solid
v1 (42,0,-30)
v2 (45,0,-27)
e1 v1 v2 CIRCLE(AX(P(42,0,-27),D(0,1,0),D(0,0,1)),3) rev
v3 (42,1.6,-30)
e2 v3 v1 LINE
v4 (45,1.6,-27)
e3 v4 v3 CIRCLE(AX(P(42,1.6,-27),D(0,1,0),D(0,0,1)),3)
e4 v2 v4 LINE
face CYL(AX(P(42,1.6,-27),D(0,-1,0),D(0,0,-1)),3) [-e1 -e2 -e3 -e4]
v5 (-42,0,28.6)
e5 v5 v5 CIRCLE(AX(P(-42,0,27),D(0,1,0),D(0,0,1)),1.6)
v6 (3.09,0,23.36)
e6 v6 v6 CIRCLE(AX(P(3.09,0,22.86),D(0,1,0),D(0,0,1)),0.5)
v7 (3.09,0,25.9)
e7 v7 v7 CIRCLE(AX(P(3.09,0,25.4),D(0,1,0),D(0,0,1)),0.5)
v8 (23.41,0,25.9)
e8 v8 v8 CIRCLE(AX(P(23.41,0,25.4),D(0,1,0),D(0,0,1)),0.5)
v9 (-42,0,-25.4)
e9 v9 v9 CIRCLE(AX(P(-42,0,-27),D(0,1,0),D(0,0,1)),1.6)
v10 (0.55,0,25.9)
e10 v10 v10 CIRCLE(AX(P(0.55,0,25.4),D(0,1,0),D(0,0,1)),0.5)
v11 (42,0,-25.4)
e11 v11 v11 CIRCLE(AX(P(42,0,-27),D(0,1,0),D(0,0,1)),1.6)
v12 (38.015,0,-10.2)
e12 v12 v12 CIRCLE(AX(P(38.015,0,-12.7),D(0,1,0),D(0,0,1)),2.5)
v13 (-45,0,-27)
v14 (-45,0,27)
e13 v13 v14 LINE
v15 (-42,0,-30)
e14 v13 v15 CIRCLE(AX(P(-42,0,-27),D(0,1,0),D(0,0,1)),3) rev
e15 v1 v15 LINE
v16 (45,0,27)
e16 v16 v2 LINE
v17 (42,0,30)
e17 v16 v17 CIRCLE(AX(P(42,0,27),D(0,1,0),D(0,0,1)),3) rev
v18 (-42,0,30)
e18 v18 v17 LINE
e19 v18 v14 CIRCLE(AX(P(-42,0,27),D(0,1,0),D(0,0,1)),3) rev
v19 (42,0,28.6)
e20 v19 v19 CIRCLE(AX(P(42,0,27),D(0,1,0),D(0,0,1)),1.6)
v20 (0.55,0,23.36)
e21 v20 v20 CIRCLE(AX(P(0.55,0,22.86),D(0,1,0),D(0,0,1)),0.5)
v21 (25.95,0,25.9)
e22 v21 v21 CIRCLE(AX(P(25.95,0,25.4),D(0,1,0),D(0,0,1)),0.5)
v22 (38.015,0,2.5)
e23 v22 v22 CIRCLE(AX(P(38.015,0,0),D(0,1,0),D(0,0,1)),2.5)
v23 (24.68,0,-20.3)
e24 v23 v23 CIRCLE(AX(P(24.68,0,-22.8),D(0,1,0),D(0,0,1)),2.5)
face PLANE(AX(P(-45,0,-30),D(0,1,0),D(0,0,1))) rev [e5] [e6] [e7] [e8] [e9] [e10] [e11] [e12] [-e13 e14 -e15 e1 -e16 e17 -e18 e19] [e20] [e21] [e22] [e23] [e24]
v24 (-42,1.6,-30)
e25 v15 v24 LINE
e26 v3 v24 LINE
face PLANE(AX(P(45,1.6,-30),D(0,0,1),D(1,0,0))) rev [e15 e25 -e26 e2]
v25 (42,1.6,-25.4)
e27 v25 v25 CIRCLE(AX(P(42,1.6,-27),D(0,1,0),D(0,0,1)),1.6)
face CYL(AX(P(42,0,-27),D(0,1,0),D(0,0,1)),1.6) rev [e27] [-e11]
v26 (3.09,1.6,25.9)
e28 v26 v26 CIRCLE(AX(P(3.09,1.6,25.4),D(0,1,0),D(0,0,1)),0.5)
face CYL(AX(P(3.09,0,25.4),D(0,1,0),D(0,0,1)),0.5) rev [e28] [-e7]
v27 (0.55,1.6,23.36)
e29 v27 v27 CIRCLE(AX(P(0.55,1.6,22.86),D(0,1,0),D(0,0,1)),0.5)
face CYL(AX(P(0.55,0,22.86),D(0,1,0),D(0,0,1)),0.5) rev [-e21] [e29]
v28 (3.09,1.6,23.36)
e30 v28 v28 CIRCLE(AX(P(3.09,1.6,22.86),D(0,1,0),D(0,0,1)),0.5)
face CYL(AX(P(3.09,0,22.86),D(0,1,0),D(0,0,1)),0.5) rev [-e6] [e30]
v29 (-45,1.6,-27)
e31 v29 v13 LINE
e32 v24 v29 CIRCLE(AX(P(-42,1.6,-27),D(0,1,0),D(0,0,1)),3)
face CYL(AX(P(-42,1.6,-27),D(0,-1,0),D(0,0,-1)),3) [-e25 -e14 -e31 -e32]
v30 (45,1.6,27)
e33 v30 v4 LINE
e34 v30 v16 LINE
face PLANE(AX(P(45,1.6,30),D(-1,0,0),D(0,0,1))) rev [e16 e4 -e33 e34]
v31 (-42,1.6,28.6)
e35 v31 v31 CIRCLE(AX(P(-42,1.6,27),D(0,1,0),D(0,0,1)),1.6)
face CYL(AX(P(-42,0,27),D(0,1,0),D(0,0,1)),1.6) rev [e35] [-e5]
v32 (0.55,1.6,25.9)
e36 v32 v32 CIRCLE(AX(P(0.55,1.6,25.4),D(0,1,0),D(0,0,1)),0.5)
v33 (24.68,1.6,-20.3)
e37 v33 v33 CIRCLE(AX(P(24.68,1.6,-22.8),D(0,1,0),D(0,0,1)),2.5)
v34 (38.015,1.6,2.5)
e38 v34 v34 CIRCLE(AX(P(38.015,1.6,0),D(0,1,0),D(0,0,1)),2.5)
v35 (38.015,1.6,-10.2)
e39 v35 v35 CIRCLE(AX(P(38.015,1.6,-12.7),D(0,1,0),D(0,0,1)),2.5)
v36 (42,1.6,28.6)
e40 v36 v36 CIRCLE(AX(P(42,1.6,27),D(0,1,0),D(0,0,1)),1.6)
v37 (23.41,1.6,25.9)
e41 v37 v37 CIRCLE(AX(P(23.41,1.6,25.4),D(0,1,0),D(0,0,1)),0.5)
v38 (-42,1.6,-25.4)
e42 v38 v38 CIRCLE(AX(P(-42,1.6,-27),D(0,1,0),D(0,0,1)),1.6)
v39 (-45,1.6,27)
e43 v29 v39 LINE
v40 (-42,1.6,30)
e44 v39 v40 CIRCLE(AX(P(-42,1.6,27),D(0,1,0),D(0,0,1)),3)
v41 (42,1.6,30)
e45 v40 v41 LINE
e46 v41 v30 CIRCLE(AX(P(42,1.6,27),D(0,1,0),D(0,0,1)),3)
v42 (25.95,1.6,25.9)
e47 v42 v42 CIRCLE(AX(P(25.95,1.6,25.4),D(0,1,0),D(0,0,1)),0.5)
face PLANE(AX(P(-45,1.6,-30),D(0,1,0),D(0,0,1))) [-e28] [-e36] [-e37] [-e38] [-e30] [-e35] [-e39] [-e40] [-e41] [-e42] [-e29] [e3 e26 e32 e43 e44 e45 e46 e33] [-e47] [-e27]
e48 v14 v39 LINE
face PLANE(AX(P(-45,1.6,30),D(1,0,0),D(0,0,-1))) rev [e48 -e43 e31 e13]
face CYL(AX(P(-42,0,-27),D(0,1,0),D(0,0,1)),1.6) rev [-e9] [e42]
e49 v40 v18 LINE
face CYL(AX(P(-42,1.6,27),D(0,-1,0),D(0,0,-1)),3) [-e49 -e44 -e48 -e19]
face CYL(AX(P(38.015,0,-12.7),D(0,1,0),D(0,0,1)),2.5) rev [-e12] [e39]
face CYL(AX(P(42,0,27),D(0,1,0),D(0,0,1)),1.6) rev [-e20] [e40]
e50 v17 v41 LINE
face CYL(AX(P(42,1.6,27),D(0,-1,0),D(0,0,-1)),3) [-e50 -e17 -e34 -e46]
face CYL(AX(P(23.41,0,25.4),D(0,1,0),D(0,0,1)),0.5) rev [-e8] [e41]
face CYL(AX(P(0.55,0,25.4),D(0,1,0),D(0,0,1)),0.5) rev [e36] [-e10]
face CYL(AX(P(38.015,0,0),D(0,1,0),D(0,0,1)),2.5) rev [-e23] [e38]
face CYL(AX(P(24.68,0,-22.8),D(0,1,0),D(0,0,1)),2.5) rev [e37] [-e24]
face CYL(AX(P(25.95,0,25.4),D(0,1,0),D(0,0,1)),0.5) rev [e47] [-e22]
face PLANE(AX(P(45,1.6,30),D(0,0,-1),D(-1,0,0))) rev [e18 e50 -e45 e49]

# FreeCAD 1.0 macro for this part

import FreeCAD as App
import Part
import Sketcher


def edges_at(feature, points):
    """Names of the edges that pass closest to the given points."""
    edges = feature.Shape.Edges
    near = lambda p: min(range(len(edges)), key=lambda i: edges[i].distToShape(Part.Vertex(*p))[0])
    return sorted({f"Edge{near(p) + 1}" for p in points})

doc = App.newDocument("Part")
body = doc.addObject("PartDesign::Body", "Body")

# Sketch on XZ plane
sketch1 = doc.addObject("Sketcher::SketchObject", "Sketch")
body.addObject(sketch1)
sketch1.AttachmentSupport = (doc.XZ_Plane, [""])
sketch1.MapMode = "FlatFace"
sketch1.addGeometry([
    Part.LineSegment(App.Vector(-45, -30, 0), App.Vector(-45, 30, 0)),
    Part.LineSegment(App.Vector(-45, 30, 0), App.Vector(45, 30, 0)),
    Part.LineSegment(App.Vector(45, 30, 0), App.Vector(45, -30, 0)),
    Part.LineSegment(App.Vector(45, -30, 0), App.Vector(-45, -30, 0)),
], False)
sketch1.addConstraint([
    Sketcher.Constraint("Coincident", 0, 2, 1, 1),
    Sketcher.Constraint("Coincident", 1, 2, 2, 1),
    Sketcher.Constraint("Coincident", 2, 2, 3, 1),
    Sketcher.Constraint("Coincident", 3, 2, 0, 1),
    Sketcher.Constraint("Vertical", 0),
    Sketcher.Constraint("Horizontal", 1),
    Sketcher.Constraint("Vertical", 2),
    Sketcher.Constraint("Horizontal", 3),
    Sketcher.Constraint("Symmetric", 0, 2, 2, 2, -1, 1),
    Sketcher.Constraint("DistanceX", 1, 1, 1, 2, 90.0),
    Sketcher.Constraint("DistanceY", 0, 1, 0, 2, 60.0),
])
pad1 = doc.addObject("PartDesign::Pad", "Pad")
body.addObject(pad1)
pad1.Profile = sketch1
pad1.Length = 1.6
pad1.Reversed = True

# Sketch on XZ plane
sketch2 = doc.addObject("Sketcher::SketchObject", "Sketch001")
body.addObject(sketch2)
sketch2.AttachmentSupport = (doc.XZ_Plane, [""])
sketch2.MapMode = "FlatFace"
sketch2.AttachmentOffset = App.Placement(App.Vector(0, 0, -1.6), App.Rotation())
sketch2.addGeometry([
    Part.Circle(App.Vector(-42, -27, 0), App.Vector(0, 0, 1), 1.6),
    Part.Circle(App.Vector(-42, 27, 0), App.Vector(0, 0, 1), 1.6),
    Part.Circle(App.Vector(42, 27, 0), App.Vector(0, 0, 1), 1.6),
    Part.Circle(App.Vector(42, -27, 0), App.Vector(0, 0, 1), 1.6),
], False)
sketch2.addConstraint([
    Sketcher.Constraint("Equal", 0, 1),
    Sketcher.Constraint("Equal", 1, 2),
    Sketcher.Constraint("Equal", 2, 3),
    Sketcher.Constraint("Symmetric", 0, 3, 2, 3, -1, 1),
    Sketcher.Constraint("Symmetric", 1, 3, 3, 3, -1, 1),
    Sketcher.Constraint("Symmetric", 1, 3, 2, 3, -2),
    Sketcher.Constraint("Diameter", 0, 3.2),
    Sketcher.Constraint("DistanceX", 0, 3, -1, 1, 42.0),
    Sketcher.Constraint("DistanceY", 0, 3, -1, 1, 27.0),
])
pocket1 = doc.addObject("PartDesign::Pocket", "Pocket")
body.addObject(pocket1)
pocket1.Profile = sketch2
pocket1.Length = 1.6
pocket1.Reversed = True
doc.recompute()

fillet = doc.addObject("PartDesign::Fillet", "Fillet")
body.addObject(fillet)
fillet.Base = (pocket1, edges_at(pocket1, [
    (-45, 0.8, -30),
    (45, 0.8, -30),
    (45, 0.8, 30),
    (-45, 0.8, 30),
]))
fillet.Radius = 3

# Sketch on XZ plane
sketch3 = doc.addObject("Sketcher::SketchObject", "Sketch002")
body.addObject(sketch3)
sketch3.AttachmentSupport = (doc.XZ_Plane, [""])
sketch3.MapMode = "FlatFace"
sketch3.AttachmentOffset = App.Placement(App.Vector(0, 0, -1.6), App.Rotation())
sketch3.addGeometry([
    Part.Circle(App.Vector(0.6, 25.4, 0), App.Vector(0, 0, 1), 0.5),  # 0
    Part.Circle(App.Vector(0.6, 22.9, 0), App.Vector(0, 0, 1), 0.5),  # 1
    Part.Circle(App.Vector(3.1, 25.4, 0), App.Vector(0, 0, 1), 0.5),  # 2
    Part.Circle(App.Vector(3.1, 22.9, 0), App.Vector(0, 0, 1), 0.5),  # 3
    Part.Circle(App.Vector(23.4, 25.4, 0), App.Vector(0, 0, 1), 0.5),  # 4
    Part.Circle(App.Vector(25.9, 25.4, 0), App.Vector(0, 0, 1), 0.5),  # 5
    Part.Circle(App.Vector(38, 0, 0), App.Vector(0, 0, 1), 2.5),  # 6
    Part.Circle(App.Vector(38, -12.7, 0), App.Vector(0, 0, 1), 2.5),  # 7
    Part.Circle(App.Vector(24.7, -22.8, 0), App.Vector(0, 0, 1), 2.5),  # 8
], False)
sketch3.addConstraint([
    Sketcher.Constraint("Equal", 0, 1),
    Sketcher.Constraint("Equal", 1, 2),
    Sketcher.Constraint("Equal", 2, 3),
    Sketcher.Constraint("Equal", 3, 4),
    Sketcher.Constraint("Equal", 4, 5),
    Sketcher.Constraint("Equal", 6, 7),
    Sketcher.Constraint("Equal", 7, 8),
    Sketcher.Constraint("PointOnObject", 6, 3, -1),
    Sketcher.Constraint("Horizontal", 0, 3, 2, 3),
    Sketcher.Constraint("Horizontal", 1, 3, 3, 3),
    Sketcher.Constraint("Horizontal", 2, 3, 4, 3),
    Sketcher.Constraint("Horizontal", 4, 3, 5, 3),
    Sketcher.Constraint("Vertical", 0, 3, 1, 3),
    Sketcher.Constraint("Vertical", 2, 3, 3, 3),
    Sketcher.Constraint("Vertical", 6, 3, 7, 3),
    Sketcher.Constraint("Diameter", 0, 1.0),
    Sketcher.Constraint("Diameter", 6, 5.0),
    Sketcher.Constraint("DistanceY", -1, 1, 0, 3, 25.4),
    Sketcher.Constraint("DistanceY", 7, 3, -1, 1, 12.7),
    Sketcher.Constraint("DistanceY", 8, 3, -1, 1, 22.8),
    Sketcher.Constraint("DistanceX", 0, 3, 5, 3, 25.4),
    Sketcher.Constraint("DistanceX", -1, 1, 0, 3, 0.55),
    Sketcher.Constraint("DistanceY", -1, 1, 1, 3, 22.86),
    Sketcher.Constraint("DistanceX", -1, 1, 2, 3, 3.09),
    Sketcher.Constraint("DistanceX", -1, 1, 4, 3, 23.41),
    Sketcher.Constraint("DistanceX", -1, 1, 8, 3, 24.68),
    Sketcher.Constraint("DistanceX", -1, 1, 6, 3, 38.015),
])
pocket2 = doc.addObject("PartDesign::Pocket", "Pocket001")
body.addObject(pocket2)
pocket2.Profile = sketch3
pocket2.Length = 1.6
pocket2.Reversed = True

doc.recompute()
